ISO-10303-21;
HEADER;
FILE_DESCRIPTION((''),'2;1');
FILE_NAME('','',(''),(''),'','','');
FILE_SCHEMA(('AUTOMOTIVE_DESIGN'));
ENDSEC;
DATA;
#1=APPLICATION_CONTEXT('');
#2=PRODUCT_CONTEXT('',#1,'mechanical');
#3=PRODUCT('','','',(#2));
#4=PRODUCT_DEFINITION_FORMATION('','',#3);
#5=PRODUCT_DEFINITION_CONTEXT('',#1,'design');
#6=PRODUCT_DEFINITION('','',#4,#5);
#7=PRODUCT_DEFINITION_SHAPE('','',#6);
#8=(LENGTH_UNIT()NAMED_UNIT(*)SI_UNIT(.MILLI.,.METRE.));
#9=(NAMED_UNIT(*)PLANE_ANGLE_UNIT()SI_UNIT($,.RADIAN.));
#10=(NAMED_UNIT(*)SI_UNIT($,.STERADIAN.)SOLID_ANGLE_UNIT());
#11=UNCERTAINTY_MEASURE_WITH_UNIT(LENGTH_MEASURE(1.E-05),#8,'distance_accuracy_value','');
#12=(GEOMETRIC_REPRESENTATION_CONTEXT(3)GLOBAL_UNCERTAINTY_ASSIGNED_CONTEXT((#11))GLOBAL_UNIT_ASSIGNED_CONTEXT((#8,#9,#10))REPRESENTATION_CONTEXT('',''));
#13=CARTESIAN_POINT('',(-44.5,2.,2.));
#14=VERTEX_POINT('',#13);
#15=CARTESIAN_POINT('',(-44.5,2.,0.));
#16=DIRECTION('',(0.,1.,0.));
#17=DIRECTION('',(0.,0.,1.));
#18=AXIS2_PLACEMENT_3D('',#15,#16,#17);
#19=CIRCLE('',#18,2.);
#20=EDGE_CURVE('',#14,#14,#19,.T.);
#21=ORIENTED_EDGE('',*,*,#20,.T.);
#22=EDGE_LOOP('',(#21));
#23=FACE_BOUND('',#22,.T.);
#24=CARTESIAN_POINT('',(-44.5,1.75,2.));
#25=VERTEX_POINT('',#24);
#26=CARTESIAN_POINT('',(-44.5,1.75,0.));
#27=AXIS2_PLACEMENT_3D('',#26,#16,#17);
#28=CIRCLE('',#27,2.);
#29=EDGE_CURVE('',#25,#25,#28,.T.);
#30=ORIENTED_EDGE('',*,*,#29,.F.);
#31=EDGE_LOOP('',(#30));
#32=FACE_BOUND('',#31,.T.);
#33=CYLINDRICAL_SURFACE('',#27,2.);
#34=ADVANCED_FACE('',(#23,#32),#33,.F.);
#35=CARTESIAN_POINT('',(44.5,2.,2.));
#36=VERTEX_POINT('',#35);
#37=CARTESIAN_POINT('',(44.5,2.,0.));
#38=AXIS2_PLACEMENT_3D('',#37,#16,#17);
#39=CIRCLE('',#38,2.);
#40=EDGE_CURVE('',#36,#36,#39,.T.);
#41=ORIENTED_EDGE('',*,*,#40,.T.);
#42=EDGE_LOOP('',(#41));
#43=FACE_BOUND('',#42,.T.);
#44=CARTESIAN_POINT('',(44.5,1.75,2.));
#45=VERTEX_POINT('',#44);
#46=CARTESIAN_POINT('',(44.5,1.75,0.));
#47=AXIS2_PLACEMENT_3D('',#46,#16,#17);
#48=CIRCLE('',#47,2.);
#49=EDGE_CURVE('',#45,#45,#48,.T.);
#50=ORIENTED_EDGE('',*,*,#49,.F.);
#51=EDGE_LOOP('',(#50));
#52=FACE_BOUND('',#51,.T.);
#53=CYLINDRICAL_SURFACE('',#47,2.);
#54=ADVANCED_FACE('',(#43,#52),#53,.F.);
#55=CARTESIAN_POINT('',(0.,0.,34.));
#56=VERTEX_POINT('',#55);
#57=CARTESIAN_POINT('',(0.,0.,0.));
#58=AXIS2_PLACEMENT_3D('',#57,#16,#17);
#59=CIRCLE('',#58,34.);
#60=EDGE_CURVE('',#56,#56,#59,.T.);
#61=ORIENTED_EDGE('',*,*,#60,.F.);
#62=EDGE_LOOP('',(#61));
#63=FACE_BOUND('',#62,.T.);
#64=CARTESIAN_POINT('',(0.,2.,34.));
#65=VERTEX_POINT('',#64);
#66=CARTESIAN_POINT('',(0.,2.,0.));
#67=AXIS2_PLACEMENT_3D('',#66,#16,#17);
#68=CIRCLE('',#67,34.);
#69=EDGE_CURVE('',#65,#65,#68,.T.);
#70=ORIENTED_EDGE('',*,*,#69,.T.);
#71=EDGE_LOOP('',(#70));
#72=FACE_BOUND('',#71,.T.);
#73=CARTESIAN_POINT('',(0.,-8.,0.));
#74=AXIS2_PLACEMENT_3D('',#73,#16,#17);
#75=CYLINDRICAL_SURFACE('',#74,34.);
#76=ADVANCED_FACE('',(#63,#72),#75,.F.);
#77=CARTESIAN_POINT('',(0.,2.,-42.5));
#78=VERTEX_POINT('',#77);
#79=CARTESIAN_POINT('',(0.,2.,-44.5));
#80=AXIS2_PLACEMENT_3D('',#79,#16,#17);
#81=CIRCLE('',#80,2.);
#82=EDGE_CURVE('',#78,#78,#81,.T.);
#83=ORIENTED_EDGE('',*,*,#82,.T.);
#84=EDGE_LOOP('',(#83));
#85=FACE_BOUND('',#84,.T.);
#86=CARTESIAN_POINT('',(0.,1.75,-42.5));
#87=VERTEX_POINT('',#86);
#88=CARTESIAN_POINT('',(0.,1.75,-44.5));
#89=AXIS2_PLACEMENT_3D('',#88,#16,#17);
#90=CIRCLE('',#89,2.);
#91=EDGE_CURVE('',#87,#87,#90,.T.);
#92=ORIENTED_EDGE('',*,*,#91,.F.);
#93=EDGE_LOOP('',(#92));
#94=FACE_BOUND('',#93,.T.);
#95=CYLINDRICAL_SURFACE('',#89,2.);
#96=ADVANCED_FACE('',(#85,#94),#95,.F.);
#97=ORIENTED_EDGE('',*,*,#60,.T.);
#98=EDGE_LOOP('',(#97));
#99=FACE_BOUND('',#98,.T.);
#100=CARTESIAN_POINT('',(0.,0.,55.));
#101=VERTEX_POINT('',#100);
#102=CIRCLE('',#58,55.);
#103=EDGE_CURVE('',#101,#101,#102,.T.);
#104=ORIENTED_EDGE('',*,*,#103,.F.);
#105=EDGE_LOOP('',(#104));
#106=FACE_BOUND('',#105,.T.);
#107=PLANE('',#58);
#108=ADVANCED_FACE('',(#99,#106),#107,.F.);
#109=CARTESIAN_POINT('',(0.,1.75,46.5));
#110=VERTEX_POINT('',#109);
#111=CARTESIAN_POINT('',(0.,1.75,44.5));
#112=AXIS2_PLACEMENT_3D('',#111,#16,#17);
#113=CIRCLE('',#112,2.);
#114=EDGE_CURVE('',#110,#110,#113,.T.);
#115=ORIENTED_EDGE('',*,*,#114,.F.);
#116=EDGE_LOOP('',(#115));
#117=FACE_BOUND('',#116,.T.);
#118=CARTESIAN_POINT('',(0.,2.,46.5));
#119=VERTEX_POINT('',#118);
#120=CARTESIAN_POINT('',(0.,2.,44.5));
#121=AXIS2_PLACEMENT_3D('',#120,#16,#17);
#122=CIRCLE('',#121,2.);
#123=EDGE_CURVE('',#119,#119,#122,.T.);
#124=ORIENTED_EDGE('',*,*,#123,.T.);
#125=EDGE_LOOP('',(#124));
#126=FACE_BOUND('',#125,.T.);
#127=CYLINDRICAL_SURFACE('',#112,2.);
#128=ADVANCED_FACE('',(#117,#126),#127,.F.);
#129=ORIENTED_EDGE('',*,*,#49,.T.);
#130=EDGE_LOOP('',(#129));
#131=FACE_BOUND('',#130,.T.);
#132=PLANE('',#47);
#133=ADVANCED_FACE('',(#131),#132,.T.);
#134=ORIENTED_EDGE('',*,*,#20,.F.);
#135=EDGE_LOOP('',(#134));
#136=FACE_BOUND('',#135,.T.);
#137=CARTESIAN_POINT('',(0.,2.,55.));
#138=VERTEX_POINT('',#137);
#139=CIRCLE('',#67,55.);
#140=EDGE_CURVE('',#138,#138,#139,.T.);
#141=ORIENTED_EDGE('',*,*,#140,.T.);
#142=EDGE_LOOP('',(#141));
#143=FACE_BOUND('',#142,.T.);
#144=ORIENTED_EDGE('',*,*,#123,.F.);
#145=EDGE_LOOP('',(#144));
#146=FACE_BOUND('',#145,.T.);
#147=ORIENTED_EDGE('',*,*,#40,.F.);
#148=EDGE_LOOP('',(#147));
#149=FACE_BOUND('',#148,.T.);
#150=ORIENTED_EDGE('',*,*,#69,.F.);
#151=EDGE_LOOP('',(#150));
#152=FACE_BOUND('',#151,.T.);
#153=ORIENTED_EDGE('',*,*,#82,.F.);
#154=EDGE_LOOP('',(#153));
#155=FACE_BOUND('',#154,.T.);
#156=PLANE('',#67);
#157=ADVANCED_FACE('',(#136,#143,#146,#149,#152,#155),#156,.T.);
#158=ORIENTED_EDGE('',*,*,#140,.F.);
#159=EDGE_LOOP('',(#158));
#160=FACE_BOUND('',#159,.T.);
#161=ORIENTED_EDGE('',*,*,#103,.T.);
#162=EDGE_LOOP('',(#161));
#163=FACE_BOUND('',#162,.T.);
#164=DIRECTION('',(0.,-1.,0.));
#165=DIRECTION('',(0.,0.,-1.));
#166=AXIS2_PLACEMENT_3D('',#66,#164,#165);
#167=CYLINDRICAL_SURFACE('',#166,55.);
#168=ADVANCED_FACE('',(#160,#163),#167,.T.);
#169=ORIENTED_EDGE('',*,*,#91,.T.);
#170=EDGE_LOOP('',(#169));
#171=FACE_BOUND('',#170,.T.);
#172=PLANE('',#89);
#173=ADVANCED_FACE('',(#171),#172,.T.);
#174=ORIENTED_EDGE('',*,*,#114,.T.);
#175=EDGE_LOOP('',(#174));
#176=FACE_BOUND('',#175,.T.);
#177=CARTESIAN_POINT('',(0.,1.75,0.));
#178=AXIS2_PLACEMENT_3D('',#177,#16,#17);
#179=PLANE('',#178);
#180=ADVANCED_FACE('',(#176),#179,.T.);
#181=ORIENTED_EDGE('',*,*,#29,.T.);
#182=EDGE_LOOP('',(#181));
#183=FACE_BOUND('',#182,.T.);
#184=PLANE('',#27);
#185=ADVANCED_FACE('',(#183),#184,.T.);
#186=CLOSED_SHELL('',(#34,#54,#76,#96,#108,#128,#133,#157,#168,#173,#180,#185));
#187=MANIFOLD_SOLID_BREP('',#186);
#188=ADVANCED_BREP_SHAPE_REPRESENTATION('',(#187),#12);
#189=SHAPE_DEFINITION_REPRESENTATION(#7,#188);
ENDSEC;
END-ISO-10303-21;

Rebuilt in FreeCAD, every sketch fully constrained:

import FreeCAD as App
import Part
import Sketcher

doc = App.newDocument("Part")
body = doc.addObject("PartDesign::Body", "Body")

# Sketch on XZ plane
sketch1 = body.newObject("Sketcher::SketchObject", "Sketch")
sketch1.AttachmentSupport = (doc.getObject("XZ_Plane"), [""])
sketch1.MapMode = "FlatFace"
sketch1.addGeometry(Part.Circle(App.Vector(0, 0, 0), App.Vector(0, 0, 1), 55), False)
sketch1.addConstraint(Sketcher.Constraint("Coincident", 0, 3, -1, 1))
sketch1.addConstraint(Sketcher.Constraint("Diameter", 0, 110.0))
pad1 = body.newObject("PartDesign::Pad", "Pad")
pad1.Profile = sketch1
pad1.Length = 2
pad1.Reversed = True

# Sketch on XZ plane
sketch2 = body.newObject("Sketcher::SketchObject", "Sketch001")
sketch2.AttachmentSupport = (doc.getObject("XZ_Plane"), [""])
sketch2.MapMode = "FlatFace"
sketch2.AttachmentOffset = App.Placement(App.Vector(0, 0, -2), App.Rotation())
sketch2.addGeometry(Part.Circle(App.Vector(0, -44.5, 0), App.Vector(0, 0, 1), 2), False)
sketch2.addGeometry(Part.Circle(App.Vector(44.5, 0, 0), App.Vector(0, 0, 1), 2), False)
sketch2.addGeometry(Part.Circle(App.Vector(0, 44.5, 0), App.Vector(0, 0, 1), 2), False)
sketch2.addGeometry(Part.Circle(App.Vector(-44.5, 0, 0), App.Vector(0, 0, 1), 2), False)
sketch2.addConstraint(Sketcher.Constraint("Equal", 0, 1))
sketch2.addConstraint(Sketcher.Constraint("Equal", 1, 2))
sketch2.addConstraint(Sketcher.Constraint("Equal", 2, 3))
sketch2.addConstraint(Sketcher.Constraint("Symmetric", 0, 3, 2, 3, -1, 1))
sketch2.addConstraint(Sketcher.Constraint("Symmetric", 1, 3, 3, 3, -1, 1))
sketch2.addConstraint(Sketcher.Constraint("PointOnObject", 0, 3, -2))
sketch2.addConstraint(Sketcher.Constraint("PointOnObject", 1, 3, -1))
sketch2.addConstraint(Sketcher.Constraint("Diameter", 0, 4.0))
sketch2.addConstraint(Sketcher.Constraint("DistanceY", 0, 3, 2, 3, 89.0))
sketch2.addConstraint(Sketcher.Constraint("DistanceX", 3, 3, 1, 3, 89.0))
pocket1 = body.newObject("PartDesign::Pocket", "Pocket")
pocket1.Profile = sketch2
pocket1.Length = 0.25
pocket1.Reversed = True

# Sketch on XZ plane
sketch3 = body.newObject("Sketcher::SketchObject", "Sketch002")
sketch3.AttachmentSupport = (doc.getObject("XZ_Plane"), [""])
sketch3.MapMode = "FlatFace"
sketch3.AttachmentOffset = App.Placement(App.Vector(0, 0, -2), App.Rotation())
sketch3.addGeometry(Part.Circle(App.Vector(0, 0, 0), App.Vector(0, 0, 1), 34), False)
sketch3.addConstraint(Sketcher.Constraint("Coincident", 0, 3, -1, 1))
sketch3.addConstraint(Sketcher.Constraint("Diameter", 0, 68.0))
pocket2 = body.newObject("PartDesign::Pocket", "Pocket001")
pocket2.Profile = sketch3
pocket2.Length = 10
pocket2.Reversed = True

doc.recompute()
